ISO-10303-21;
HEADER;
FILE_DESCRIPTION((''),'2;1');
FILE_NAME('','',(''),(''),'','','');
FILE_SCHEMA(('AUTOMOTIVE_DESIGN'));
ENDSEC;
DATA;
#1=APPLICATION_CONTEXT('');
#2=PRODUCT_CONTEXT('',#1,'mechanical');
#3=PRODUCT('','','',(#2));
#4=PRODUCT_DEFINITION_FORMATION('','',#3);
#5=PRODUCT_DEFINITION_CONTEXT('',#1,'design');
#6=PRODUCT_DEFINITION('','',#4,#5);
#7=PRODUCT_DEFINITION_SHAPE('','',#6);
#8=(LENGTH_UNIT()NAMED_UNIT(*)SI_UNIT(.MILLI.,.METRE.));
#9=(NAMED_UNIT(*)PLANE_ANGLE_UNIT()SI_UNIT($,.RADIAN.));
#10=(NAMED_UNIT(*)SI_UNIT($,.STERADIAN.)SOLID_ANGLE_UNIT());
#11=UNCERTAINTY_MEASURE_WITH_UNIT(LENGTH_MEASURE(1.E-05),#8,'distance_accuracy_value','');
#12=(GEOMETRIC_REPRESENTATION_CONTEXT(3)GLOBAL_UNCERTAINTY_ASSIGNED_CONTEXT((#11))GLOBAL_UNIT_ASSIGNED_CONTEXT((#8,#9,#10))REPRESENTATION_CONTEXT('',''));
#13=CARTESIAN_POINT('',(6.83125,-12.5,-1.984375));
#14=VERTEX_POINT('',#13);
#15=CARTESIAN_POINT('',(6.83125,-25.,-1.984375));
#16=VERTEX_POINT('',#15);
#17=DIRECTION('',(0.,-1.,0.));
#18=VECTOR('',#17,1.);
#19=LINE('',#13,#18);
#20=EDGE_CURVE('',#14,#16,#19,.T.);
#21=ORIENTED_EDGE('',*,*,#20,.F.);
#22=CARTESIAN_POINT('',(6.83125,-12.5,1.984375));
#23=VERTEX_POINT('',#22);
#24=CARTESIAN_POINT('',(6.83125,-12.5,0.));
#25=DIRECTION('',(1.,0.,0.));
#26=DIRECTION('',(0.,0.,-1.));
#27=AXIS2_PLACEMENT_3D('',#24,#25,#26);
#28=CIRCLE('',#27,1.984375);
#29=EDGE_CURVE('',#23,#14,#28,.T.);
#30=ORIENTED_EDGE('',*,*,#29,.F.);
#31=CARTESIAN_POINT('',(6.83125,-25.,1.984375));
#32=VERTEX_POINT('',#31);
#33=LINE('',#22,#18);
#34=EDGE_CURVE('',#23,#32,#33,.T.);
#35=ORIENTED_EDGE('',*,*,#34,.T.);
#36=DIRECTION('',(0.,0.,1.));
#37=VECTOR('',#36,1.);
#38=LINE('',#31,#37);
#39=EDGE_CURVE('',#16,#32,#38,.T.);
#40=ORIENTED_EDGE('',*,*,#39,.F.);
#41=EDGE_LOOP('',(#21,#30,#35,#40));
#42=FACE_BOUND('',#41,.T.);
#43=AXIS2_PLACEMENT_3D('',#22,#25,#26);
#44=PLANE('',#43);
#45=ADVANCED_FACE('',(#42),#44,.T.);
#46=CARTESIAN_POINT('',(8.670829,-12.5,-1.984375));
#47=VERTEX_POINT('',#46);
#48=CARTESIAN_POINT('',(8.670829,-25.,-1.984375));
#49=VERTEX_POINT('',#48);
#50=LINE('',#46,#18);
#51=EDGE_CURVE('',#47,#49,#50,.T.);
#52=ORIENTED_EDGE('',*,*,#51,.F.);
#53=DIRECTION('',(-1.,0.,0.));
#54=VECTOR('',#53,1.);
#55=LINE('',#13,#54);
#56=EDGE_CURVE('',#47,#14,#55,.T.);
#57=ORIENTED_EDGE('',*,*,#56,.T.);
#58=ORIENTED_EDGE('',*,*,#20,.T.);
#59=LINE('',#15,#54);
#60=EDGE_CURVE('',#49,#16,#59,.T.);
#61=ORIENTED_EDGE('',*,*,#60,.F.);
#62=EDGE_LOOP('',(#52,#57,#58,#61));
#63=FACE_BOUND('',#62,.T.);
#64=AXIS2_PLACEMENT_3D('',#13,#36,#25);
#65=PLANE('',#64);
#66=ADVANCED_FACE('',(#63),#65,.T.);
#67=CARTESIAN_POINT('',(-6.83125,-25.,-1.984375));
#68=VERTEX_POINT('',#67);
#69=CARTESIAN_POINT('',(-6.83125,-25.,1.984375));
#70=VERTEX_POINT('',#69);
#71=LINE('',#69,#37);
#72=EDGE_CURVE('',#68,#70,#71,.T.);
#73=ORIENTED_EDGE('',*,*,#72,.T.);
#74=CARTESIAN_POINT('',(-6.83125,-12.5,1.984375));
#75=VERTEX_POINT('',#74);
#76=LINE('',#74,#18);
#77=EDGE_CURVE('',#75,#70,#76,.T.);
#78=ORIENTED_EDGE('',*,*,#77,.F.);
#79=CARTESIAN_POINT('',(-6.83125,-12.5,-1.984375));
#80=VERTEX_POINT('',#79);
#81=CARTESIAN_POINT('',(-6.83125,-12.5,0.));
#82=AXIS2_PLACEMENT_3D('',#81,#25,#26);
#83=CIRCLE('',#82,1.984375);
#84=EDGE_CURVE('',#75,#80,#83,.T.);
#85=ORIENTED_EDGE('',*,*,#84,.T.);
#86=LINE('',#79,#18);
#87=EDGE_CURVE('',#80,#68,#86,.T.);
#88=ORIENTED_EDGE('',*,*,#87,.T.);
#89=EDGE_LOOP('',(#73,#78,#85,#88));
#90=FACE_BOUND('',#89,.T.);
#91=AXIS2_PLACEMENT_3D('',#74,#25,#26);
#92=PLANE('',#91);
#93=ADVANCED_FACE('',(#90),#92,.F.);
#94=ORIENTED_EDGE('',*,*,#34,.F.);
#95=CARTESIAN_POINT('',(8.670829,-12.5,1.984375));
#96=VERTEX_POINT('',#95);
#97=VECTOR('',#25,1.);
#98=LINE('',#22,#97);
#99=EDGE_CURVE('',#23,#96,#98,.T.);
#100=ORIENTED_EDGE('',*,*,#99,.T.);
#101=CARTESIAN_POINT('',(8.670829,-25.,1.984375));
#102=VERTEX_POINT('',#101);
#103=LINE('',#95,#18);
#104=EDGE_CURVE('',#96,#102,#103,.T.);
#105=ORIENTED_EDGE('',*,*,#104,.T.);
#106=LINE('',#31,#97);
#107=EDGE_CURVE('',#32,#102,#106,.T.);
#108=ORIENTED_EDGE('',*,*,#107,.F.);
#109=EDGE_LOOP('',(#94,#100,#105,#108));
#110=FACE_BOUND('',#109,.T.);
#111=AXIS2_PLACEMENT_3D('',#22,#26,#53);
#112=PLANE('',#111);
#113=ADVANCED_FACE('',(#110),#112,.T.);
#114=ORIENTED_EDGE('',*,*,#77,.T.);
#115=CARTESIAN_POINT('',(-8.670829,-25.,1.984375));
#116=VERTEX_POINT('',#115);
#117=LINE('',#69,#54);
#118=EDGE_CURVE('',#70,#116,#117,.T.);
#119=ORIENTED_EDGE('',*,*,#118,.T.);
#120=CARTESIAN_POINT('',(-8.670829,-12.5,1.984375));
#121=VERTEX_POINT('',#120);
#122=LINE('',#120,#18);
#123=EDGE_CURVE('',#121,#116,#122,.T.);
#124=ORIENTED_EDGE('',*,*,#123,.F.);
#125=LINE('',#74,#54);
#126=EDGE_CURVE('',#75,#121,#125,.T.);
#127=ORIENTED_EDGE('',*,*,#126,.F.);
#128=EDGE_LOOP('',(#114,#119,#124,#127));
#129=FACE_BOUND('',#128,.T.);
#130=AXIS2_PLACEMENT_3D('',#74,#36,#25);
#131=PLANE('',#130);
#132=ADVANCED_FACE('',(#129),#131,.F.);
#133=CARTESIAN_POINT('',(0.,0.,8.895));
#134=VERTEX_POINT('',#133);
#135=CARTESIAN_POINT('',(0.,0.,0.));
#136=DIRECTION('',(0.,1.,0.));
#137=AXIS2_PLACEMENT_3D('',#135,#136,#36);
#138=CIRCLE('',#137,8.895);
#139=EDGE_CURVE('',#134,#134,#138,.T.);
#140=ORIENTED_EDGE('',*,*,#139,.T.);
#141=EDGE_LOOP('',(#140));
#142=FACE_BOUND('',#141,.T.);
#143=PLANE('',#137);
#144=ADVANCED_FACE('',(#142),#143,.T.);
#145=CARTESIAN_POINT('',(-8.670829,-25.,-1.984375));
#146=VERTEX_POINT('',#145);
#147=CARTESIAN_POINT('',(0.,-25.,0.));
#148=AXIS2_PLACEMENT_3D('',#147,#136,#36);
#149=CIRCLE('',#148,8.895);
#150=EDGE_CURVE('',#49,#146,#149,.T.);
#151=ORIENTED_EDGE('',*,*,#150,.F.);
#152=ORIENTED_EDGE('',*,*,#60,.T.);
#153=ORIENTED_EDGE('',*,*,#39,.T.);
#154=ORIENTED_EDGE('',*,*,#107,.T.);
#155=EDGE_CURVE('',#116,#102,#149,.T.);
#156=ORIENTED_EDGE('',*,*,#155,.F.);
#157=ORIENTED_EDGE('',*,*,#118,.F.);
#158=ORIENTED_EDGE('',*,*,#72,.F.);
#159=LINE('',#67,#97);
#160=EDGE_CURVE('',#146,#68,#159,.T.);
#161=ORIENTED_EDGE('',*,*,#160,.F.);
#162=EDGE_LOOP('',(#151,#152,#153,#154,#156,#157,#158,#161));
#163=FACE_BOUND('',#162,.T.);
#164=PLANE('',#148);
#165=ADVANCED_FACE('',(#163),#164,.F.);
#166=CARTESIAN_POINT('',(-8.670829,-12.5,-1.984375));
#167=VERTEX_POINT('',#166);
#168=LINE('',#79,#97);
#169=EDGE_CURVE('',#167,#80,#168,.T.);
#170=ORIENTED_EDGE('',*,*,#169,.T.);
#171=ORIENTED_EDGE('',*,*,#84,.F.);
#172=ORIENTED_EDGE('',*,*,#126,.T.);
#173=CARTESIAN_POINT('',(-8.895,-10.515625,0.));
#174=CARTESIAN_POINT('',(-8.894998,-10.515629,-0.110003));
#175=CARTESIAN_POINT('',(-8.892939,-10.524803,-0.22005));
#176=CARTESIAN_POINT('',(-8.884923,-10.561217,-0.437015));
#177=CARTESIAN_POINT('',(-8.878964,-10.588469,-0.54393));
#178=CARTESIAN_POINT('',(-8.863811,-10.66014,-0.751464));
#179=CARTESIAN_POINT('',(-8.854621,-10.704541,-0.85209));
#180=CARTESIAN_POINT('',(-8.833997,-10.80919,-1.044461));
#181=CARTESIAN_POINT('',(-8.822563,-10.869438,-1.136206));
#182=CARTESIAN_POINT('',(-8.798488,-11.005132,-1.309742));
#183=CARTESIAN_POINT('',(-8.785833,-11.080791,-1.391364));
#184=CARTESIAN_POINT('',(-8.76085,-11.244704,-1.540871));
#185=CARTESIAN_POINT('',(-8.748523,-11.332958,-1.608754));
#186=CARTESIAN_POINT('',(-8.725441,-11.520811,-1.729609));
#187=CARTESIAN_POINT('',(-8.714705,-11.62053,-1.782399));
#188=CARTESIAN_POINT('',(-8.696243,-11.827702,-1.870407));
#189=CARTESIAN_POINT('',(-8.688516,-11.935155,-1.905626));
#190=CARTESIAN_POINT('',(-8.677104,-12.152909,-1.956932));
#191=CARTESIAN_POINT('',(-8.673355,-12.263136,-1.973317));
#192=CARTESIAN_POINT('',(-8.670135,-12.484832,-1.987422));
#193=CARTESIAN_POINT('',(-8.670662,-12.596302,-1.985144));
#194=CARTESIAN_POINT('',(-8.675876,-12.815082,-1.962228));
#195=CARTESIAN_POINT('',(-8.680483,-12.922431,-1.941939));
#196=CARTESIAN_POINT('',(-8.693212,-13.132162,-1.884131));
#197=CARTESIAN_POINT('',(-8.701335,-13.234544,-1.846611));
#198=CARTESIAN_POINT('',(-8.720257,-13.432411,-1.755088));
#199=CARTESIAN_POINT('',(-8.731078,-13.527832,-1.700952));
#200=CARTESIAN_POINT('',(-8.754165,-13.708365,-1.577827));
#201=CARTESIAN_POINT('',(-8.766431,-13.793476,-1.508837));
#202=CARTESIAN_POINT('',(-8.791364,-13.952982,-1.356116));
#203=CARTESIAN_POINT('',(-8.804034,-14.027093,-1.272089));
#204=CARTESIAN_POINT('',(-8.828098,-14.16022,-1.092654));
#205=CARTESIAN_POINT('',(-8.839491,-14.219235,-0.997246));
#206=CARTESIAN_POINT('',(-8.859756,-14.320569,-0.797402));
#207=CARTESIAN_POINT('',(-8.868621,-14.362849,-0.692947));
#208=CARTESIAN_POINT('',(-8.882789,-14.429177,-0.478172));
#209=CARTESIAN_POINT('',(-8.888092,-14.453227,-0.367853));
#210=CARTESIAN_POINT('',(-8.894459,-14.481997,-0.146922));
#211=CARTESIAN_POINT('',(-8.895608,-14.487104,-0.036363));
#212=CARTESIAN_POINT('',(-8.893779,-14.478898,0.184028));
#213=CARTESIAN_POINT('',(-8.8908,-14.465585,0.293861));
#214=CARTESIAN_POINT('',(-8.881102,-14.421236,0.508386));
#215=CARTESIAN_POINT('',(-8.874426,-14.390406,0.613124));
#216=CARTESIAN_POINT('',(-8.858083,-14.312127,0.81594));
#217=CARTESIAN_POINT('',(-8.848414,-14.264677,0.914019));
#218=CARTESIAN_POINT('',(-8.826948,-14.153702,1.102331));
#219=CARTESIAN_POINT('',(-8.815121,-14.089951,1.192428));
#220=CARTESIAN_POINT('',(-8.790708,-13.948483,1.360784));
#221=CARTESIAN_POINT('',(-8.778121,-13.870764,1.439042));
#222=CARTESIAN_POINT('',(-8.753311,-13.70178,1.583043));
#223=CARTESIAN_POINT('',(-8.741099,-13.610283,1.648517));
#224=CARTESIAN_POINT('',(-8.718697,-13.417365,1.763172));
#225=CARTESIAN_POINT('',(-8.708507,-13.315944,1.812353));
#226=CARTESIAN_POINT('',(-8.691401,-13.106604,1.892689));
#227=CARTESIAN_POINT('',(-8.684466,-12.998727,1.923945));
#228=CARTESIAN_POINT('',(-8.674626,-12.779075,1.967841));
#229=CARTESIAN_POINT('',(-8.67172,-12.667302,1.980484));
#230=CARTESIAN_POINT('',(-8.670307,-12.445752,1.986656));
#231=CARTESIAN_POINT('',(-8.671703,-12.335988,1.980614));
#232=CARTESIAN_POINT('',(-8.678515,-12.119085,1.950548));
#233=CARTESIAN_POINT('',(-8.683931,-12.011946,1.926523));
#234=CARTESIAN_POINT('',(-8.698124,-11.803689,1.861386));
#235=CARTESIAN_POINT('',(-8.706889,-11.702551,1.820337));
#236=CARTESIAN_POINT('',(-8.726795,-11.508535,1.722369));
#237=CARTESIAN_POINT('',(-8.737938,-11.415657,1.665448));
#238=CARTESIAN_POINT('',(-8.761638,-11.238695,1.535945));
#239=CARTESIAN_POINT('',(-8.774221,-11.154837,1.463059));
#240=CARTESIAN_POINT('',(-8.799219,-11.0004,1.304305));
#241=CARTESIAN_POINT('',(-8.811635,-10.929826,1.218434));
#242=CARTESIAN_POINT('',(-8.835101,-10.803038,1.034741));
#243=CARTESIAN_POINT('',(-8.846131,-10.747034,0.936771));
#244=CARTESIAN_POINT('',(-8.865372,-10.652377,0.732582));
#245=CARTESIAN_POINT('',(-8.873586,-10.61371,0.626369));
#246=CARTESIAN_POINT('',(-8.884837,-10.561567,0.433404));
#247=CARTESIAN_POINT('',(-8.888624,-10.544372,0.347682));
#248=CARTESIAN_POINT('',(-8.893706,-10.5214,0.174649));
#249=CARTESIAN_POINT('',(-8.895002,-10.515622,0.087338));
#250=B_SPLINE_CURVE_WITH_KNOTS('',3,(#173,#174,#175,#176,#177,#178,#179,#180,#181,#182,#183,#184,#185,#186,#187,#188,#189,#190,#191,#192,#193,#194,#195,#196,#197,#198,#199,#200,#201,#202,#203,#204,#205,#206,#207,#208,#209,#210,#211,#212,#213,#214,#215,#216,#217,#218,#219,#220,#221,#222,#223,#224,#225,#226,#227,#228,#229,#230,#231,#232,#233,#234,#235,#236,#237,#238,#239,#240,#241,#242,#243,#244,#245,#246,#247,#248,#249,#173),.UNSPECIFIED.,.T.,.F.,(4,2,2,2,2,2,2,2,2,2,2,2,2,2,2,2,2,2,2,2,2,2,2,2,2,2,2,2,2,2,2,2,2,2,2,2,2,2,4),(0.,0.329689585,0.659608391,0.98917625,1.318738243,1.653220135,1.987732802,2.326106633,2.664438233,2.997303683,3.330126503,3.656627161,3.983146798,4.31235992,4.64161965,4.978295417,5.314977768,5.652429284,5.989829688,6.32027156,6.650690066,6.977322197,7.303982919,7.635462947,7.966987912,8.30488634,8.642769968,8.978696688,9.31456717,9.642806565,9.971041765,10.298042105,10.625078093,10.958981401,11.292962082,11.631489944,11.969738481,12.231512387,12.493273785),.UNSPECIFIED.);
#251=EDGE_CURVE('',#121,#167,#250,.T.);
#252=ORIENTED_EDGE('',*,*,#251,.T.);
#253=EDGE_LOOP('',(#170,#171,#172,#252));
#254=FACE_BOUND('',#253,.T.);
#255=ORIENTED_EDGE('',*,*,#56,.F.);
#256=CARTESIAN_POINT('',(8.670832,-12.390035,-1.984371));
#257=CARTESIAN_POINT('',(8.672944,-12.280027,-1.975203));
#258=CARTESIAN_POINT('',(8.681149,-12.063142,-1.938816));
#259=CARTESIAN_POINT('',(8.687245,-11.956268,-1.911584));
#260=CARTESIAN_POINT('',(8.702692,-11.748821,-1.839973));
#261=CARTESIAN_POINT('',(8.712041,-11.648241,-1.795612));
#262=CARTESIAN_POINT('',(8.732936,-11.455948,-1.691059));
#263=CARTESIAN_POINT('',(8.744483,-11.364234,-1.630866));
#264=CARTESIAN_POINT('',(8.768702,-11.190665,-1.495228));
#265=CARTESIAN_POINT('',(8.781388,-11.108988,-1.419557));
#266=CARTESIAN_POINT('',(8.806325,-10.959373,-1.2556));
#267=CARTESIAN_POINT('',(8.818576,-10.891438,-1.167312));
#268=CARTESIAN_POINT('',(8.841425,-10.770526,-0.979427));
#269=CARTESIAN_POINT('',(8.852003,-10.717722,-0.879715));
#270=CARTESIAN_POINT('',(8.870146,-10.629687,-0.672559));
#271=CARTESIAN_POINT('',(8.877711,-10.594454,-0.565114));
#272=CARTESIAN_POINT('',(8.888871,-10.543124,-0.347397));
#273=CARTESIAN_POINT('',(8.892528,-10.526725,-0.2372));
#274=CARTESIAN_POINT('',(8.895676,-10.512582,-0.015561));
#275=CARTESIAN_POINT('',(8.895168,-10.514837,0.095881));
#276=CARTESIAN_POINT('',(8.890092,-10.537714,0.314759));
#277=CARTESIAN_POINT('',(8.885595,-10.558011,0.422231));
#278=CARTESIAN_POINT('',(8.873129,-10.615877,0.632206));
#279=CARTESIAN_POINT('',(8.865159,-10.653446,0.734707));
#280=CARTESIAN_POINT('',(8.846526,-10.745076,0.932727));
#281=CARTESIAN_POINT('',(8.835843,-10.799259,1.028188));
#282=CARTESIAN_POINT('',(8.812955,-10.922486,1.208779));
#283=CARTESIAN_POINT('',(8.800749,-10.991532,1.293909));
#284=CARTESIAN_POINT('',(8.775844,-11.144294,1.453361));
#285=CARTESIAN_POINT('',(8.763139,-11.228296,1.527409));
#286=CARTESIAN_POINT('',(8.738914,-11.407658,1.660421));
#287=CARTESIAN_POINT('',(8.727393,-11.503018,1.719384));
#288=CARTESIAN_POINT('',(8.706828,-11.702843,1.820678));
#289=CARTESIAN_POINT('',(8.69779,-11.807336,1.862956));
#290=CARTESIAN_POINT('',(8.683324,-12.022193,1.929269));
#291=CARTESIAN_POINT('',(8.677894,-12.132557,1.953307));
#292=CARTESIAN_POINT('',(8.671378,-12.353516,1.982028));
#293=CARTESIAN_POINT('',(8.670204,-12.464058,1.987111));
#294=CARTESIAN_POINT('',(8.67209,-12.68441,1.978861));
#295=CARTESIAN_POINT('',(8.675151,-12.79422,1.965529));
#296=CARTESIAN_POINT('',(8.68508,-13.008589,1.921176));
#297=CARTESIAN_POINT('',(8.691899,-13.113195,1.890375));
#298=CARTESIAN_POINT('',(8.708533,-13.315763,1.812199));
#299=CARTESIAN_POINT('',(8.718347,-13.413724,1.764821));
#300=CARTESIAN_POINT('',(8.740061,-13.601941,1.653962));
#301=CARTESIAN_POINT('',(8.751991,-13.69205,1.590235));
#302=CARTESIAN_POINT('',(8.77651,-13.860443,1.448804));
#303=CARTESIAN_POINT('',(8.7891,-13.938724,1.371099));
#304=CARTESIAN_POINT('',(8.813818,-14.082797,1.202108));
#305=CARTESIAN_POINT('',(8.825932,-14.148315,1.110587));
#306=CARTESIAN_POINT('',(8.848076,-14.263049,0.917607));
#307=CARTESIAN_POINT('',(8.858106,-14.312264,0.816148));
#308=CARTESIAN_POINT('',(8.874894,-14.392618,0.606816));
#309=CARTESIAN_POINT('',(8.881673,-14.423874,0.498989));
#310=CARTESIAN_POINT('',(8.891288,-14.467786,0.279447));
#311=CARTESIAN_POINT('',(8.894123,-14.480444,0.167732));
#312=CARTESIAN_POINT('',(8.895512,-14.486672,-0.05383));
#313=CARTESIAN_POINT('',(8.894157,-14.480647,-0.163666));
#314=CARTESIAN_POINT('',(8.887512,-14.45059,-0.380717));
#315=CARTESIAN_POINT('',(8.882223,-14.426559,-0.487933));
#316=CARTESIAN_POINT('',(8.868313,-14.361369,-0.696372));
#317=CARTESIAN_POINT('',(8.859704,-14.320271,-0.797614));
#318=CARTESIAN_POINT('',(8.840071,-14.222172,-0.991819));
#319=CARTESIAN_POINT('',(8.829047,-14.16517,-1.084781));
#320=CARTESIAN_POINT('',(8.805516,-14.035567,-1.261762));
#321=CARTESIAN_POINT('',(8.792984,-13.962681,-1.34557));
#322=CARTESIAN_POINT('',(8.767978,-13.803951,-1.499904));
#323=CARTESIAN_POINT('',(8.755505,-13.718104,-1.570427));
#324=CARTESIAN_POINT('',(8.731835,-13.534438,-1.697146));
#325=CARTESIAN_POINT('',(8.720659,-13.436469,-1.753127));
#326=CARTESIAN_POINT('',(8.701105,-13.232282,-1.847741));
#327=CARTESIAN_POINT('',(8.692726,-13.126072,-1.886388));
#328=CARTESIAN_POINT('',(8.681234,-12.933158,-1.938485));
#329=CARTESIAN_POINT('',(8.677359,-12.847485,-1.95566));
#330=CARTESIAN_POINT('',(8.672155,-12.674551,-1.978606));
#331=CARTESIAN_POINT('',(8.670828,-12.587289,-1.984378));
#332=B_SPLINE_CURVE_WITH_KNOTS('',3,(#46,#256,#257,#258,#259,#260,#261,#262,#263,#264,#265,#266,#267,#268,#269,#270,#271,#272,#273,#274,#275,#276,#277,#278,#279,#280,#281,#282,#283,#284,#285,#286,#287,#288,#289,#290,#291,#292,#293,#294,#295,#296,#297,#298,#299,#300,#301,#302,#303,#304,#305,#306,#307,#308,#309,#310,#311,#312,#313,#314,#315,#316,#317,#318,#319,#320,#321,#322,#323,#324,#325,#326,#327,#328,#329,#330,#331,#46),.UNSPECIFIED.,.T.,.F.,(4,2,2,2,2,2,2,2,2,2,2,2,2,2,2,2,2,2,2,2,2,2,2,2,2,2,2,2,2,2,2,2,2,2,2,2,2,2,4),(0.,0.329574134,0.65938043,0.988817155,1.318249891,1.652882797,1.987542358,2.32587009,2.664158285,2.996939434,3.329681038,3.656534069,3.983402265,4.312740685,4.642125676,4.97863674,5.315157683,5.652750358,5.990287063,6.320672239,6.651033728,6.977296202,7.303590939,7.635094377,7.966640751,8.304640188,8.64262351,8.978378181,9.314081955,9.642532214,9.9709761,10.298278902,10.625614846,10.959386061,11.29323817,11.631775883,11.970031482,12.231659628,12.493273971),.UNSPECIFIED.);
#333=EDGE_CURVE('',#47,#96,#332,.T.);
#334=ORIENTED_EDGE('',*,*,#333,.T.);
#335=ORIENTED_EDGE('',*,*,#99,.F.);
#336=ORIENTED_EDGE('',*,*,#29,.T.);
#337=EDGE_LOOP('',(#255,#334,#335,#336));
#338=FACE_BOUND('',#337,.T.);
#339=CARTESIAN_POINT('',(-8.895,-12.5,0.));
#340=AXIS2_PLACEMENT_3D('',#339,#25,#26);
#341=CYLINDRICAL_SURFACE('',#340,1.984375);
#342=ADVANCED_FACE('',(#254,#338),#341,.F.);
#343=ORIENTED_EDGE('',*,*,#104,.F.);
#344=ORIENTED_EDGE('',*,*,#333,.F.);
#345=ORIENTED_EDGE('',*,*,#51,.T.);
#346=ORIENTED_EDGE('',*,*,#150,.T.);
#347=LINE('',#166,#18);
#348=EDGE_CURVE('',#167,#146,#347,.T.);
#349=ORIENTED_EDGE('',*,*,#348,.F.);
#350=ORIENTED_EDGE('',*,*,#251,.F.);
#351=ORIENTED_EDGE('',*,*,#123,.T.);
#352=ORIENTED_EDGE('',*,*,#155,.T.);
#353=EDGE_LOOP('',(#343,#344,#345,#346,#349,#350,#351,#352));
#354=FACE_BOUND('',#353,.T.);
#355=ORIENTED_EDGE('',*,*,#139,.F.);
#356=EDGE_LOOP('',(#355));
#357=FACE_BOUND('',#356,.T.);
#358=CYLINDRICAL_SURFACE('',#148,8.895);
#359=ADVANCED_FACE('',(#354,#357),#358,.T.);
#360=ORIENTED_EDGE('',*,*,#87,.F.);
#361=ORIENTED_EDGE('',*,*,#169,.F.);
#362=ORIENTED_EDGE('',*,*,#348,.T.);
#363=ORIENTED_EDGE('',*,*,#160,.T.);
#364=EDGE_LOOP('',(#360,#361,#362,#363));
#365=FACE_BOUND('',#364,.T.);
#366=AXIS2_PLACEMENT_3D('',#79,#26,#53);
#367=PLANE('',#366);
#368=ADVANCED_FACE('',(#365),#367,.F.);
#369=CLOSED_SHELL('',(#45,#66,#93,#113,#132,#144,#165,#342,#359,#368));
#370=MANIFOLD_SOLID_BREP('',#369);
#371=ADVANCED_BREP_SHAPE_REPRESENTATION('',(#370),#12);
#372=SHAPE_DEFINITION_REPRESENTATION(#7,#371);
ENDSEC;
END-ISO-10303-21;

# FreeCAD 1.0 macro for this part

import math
import FreeCAD as App
import Part
import Sketcher

V = App.Vector
Q = App.Units.Quantity

doc = App.newDocument("Part")
body = doc.addObject("PartDesign::Body", "Body")

sketch1 = body.newObject("Sketcher::SketchObject", "Sketch")
sketch1.AttachmentSupport = (doc.getObject("XZ_Plane"), [""])
sketch1.MapMode = "FlatFace"
sketch1.addGeometry(Part.Circle(V(0, 0, 0), V(0, 0, 1), 9), False)
sketch1.addConstraint(Sketcher.Constraint("Coincident", 0, 3, -1, 1))
sketch1.addConstraint(Sketcher.Constraint("Diameter", 0, Q("17.79 mm")))
pad1 = body.newObject("PartDesign::Pad", "Pad")
pad1.Profile = sketch1
pad1.Length = 25

sketch2 = body.newObject("Sketcher::SketchObject", "Sketch001")
sketch2.AttachmentSupport = (doc.getObject("XZ_Plane"), [""])
sketch2.MapMode = "FlatFace"
sketch2.AttachmentOffset = App.Placement(V(0, 0, 25), App.Rotation())
sketch2.addGeometry(Part.LineSegment(V(-6.8, -2, 0), V(-6.8, 2, 0)), False)
sketch2.addGeometry(Part.LineSegment(V(-6.8, 2, 0), V(-8.7, 2, 0)), False)
sketch2.addGeometry(Part.ArcOfCircle(Part.Circle(V(0, 0, 0), V(0, 0, 1), 8.9), math.radians(167), math.radians(193)), False)
sketch2.addGeometry(Part.LineSegment(V(-8.7, -2, 0), V(-6.8, -2, 0)), False)
sketch2.addConstraint(Sketcher.Constraint("Coincident", 0, 2, 1, 1))
sketch2.addConstraint(Sketcher.Constraint("Coincident", 1, 2, 2, 1))
sketch2.addConstraint(Sketcher.Constraint("Coincident", 2, 2, 3, 1))
sketch2.addConstraint(Sketcher.Constraint("Coincident", 3, 2, 0, 1))
sketch2.addConstraint(Sketcher.Constraint("Vertical", 0))
sketch2.addConstraint(Sketcher.Constraint("Horizontal", 1))
sketch2.addConstraint(Sketcher.Constraint("Horizontal", 3))
sketch2.addConstraint(Sketcher.Constraint("Coincident", 2, 3, -1, 1))
sketch2.addConstraint(Sketcher.Constraint("Vertical", 1, 2, 2, 2))
sketch2.addConstraint(Sketcher.Constraint("Radius", 2, Q("8.895 mm")))
sketch2.addConstraint(Sketcher.Constraint("DistanceX", 1, 2, 1, 1, Q("1.839579 mm")))
sketch2.addConstraint(Sketcher.Constraint("DistanceY", 0, 1, 0, 2, Q("3.96875 mm")))
pocket1 = body.newObject("PartDesign::Pocket", "Pocket")
pocket1.Profile = sketch2
pocket1.Length = 12.5
doc.recompute()

mirrored = body.newObject("PartDesign::Mirrored", "Mirrored")
mirrored.Originals = [pocket1]
mirrored.MirrorPlane = (doc.getObject("YZ_Plane"), [""])
body.Tip = mirrored

sketch3 = body.newObject("Sketcher::SketchObject", "Sketch002")
sketch3.AttachmentSupport = (doc.getObject("YZ_Plane"), [""])
sketch3.MapMode = "FlatFace"
sketch3.addGeometry(Part.Circle(V(-12.5, 0, 0), V(0, 0, 1), 2), False)
sketch3.addConstraint(Sketcher.Constraint("PointOnObject", 0, 3, -1))
sketch3.addConstraint(Sketcher.Constraint("DistanceX", 0, 3, -1, 1, Q("12.5 mm")))
sketch3.addConstraint(Sketcher.Constraint("Diameter", 0, Q("3.96875 mm")))
pocket2 = body.newObject("PartDesign::Pocket", "Pocket001")
pocket2.Profile = sketch3
pocket2.Type = "ThroughAll"
pocket2.Midplane = True

doc.recompute()
